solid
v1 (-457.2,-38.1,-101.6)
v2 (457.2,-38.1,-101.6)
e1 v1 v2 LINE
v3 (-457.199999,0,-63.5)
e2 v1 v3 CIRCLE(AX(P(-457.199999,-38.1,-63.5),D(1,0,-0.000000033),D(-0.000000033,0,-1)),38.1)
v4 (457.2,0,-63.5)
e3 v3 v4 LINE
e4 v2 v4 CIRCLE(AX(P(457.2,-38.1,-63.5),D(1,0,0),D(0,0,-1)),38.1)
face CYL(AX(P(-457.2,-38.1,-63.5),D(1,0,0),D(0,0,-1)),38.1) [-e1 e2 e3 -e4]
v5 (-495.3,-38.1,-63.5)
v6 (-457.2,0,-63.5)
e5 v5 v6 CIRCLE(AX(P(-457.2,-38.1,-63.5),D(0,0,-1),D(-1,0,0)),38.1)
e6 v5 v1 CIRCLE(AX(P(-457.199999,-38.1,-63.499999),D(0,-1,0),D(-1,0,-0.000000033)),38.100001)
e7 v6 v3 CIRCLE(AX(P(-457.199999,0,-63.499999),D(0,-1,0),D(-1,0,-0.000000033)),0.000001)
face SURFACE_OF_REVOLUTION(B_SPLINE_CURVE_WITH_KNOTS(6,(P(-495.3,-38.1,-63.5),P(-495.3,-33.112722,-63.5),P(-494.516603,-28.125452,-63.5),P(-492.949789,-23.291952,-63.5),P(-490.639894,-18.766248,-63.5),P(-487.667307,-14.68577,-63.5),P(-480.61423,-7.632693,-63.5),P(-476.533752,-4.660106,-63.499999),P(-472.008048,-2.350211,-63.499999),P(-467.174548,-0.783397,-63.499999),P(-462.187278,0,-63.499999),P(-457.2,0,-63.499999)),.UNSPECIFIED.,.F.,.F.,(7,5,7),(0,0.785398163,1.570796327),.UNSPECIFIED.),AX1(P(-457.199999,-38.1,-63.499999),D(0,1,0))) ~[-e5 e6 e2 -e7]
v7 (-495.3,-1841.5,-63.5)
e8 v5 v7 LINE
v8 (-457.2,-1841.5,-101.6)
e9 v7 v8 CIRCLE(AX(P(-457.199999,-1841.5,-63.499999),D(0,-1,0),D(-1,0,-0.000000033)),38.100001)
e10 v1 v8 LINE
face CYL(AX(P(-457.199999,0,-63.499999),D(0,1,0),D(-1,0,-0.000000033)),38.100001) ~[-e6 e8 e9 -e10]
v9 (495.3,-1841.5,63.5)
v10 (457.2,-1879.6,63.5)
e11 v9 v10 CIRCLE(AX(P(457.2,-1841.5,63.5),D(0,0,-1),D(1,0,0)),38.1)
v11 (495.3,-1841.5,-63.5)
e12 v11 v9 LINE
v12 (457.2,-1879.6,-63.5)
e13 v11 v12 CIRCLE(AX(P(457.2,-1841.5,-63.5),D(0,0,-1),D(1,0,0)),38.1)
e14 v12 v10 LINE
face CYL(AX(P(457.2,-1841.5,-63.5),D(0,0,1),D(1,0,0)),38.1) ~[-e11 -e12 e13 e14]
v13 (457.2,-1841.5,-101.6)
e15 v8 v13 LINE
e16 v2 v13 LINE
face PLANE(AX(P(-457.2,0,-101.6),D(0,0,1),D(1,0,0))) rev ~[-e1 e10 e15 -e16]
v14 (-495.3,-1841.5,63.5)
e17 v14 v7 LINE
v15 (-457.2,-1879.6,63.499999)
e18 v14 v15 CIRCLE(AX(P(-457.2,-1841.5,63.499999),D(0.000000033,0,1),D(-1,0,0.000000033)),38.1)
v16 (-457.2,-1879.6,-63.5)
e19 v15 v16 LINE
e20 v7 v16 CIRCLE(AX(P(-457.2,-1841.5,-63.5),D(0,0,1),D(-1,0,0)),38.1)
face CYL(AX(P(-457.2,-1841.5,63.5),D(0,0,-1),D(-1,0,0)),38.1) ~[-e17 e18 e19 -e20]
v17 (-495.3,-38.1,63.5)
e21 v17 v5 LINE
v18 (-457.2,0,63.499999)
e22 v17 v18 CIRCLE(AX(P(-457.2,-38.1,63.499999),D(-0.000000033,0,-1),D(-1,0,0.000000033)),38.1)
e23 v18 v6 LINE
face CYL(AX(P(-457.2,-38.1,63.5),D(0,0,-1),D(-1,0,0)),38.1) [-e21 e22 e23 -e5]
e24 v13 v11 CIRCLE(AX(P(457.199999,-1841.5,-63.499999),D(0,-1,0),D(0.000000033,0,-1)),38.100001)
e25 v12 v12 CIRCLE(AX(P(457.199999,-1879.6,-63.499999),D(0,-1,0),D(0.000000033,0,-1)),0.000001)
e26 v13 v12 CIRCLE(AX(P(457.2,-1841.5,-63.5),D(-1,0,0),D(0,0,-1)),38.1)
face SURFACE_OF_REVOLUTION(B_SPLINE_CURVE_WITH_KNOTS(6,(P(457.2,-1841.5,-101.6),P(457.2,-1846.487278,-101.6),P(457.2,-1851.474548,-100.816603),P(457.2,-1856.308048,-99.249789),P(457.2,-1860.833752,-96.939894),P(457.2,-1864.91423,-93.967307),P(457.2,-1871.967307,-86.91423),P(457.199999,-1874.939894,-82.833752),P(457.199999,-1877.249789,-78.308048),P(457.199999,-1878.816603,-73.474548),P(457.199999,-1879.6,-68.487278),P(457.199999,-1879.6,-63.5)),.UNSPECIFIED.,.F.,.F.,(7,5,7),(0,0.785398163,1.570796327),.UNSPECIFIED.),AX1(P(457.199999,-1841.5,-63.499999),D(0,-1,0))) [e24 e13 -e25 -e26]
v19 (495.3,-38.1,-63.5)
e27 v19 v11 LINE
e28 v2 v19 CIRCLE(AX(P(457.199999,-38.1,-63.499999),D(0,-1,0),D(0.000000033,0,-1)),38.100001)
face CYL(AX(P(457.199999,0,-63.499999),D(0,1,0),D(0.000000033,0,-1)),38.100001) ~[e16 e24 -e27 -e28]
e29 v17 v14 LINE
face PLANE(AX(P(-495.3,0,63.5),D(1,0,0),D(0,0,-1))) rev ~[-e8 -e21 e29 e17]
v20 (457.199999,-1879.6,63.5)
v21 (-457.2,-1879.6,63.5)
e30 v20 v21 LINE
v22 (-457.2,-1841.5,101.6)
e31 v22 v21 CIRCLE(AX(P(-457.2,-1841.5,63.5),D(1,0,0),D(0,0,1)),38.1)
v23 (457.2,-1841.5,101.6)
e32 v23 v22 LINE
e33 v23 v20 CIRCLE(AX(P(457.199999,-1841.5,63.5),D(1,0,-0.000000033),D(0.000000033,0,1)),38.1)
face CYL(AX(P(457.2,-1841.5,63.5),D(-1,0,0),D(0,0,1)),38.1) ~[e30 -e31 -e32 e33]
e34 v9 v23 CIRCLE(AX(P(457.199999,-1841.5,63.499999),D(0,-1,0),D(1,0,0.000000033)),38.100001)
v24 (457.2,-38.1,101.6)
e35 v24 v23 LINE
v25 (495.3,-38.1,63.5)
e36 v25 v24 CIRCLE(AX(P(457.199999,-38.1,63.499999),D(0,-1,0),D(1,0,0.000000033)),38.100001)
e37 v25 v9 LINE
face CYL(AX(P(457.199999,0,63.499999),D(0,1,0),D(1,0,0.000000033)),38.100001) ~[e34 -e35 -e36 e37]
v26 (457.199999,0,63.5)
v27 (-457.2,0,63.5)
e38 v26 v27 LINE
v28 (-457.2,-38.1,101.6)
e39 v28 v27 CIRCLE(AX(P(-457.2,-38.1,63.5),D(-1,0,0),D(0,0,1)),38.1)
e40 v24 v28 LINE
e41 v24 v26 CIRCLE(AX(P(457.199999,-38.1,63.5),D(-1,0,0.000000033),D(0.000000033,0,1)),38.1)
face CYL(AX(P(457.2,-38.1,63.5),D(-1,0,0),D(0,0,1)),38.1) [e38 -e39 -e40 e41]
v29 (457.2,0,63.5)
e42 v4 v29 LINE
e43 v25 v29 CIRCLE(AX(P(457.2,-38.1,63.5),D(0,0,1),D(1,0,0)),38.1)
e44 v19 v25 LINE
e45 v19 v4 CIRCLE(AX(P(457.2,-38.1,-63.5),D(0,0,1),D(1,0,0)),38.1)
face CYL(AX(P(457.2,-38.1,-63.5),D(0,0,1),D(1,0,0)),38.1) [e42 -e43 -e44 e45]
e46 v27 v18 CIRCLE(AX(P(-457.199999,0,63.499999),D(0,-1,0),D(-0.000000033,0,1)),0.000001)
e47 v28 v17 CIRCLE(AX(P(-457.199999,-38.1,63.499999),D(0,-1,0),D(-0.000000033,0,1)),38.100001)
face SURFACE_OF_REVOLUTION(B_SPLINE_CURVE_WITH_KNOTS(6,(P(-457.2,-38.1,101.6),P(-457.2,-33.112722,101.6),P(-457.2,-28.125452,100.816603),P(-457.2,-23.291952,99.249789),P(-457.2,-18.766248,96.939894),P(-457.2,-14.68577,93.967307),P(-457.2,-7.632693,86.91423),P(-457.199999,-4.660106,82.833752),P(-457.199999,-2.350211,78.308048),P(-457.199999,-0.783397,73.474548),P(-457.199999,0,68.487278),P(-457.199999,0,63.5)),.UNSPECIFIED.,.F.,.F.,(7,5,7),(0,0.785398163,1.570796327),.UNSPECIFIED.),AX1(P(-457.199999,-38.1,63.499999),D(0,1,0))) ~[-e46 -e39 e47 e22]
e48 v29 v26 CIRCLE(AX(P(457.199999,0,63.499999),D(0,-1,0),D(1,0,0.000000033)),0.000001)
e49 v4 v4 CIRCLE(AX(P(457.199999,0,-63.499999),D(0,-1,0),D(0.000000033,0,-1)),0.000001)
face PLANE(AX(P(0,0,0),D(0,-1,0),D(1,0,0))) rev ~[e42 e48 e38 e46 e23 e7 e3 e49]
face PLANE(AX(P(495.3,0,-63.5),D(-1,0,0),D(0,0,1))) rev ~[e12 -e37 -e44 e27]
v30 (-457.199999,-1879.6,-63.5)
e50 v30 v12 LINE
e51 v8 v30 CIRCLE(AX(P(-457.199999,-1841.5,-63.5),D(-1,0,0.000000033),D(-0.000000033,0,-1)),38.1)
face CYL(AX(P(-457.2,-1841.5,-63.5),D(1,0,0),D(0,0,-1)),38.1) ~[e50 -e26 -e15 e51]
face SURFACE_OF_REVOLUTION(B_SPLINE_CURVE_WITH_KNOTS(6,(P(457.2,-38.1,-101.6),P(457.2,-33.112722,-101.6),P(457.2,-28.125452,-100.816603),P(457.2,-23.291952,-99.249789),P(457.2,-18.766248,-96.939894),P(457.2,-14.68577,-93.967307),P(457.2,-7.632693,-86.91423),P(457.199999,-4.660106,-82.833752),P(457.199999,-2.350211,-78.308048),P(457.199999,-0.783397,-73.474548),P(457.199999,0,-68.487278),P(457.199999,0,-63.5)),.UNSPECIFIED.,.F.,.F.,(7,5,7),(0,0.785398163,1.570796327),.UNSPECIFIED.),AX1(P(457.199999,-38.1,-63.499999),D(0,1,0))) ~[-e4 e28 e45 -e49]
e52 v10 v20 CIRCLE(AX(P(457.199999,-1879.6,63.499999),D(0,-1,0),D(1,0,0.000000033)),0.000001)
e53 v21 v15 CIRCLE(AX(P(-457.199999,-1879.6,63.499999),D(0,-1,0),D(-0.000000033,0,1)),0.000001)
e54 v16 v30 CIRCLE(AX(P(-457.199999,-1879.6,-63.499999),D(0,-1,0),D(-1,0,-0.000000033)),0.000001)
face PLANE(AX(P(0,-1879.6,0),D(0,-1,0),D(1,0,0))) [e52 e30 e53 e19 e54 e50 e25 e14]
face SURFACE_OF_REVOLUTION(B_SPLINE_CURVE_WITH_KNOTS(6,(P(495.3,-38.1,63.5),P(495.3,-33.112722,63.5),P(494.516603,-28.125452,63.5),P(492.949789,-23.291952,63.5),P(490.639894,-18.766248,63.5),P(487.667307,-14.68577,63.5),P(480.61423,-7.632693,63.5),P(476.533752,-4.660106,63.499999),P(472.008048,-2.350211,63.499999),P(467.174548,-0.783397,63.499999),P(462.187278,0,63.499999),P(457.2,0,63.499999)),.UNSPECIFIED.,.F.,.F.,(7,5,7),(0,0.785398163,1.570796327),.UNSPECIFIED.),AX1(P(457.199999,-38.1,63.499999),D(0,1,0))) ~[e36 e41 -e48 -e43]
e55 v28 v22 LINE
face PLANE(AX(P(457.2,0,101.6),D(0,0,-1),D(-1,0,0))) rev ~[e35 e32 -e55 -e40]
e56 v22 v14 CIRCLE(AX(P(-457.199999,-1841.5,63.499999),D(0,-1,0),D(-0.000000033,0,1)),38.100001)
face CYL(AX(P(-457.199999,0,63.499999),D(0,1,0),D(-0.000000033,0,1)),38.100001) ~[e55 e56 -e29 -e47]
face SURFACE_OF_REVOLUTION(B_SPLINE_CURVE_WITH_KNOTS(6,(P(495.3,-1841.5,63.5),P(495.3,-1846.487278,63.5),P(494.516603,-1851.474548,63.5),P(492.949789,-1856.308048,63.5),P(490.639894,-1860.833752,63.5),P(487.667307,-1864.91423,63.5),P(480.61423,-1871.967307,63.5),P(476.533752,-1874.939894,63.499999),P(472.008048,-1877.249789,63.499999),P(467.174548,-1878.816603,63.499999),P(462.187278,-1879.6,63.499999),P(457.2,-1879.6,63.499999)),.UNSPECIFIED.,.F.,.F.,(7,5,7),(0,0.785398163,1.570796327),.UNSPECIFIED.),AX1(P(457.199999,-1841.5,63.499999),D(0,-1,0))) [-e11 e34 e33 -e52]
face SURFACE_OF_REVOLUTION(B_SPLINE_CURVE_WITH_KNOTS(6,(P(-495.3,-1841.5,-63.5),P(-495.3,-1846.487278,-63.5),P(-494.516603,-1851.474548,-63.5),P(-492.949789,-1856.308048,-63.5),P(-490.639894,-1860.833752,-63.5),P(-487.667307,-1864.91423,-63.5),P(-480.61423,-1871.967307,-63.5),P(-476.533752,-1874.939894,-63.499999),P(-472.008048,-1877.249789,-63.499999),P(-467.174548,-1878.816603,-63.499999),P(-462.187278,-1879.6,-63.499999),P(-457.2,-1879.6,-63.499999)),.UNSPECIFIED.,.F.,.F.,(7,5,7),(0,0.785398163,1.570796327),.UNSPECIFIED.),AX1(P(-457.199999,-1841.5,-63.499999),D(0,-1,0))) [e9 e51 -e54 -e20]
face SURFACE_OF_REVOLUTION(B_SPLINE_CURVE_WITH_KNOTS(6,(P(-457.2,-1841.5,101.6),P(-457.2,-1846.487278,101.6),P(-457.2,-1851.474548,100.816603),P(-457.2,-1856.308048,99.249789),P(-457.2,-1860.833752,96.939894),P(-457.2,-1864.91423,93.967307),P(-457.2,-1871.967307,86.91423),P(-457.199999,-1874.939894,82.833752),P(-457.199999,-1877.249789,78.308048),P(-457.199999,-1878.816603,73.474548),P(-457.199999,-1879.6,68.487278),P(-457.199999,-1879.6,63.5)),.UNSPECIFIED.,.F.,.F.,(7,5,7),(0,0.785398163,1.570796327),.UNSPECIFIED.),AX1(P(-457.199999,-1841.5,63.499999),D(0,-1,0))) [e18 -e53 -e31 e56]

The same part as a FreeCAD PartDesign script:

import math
import FreeCAD as App
import Part
import Sketcher
from FreeCAD import Vector
Q = App.Units.Quantity


def edges_at(feature, points):
    """Names of the edges that pass closest to the given points."""
    edges = feature.Shape.Edges
    near = lambda p: min(range(len(edges)), key=lambda i: edges[i].distToShape(Part.Vertex(*p))[0])
    return sorted({f"Edge{near(p) + 1}" for p in points})

doc = App.newDocument("Part")
body = doc.addObject("PartDesign::Body", "Body")

# Sketch on XZ plane
sketch1 = body.newObject("Sketcher::SketchObject", "Sketch")
sketch1.AttachmentSupport = (doc.getObject("XZ_Plane"), [""])
sketch1.MapMode = "FlatFace"
sketch1.addGeometry([
    Part.LineSegment(Vector(-457.2, -101.6, 0), Vector(457.2, -101.6, 0)),  # 0
    Part.ArcOfCircle(Part.Circle(Vector(457.199999, -63.499999, 0), Vector(0, 0, 1), 38.100001), math.radians(-89.999998), math.radians(-0.000002)),  # 1
    Part.LineSegment(Vector(495.3, -63.5, 0), Vector(495.3, 63.5, 0)),  # 2
    Part.ArcOfCircle(Part.Circle(Vector(457.199999, 63.499999, 0), Vector(0, 0, 1), 38.100001), math.radians(0.000002), math.radians(89.999998)),  # 3
    Part.LineSegment(Vector(457.2, 101.6, 0), Vector(-457.2, 101.6, 0)),  # 4
    Part.ArcOfCircle(Part.Circle(Vector(-457.199999, 63.499999, 0), Vector(0, 0, 1), 38.100001), math.radians(90.000002), math.radians(179.999998)),  # 5
    Part.LineSegment(Vector(-495.3, 63.5, 0), Vector(-495.3, -63.5, 0)),  # 6
    Part.ArcOfCircle(Part.Circle(Vector(-457.199999, -63.499999, 0), Vector(0, 0, 1), 38.100001), math.radians(-179.999998), math.radians(-90.000002)),  # 7
], False)
sketch1.addConstraint([
    Sketcher.Constraint("Tangent", 0, 2, 1, 1),
    Sketcher.Constraint("Tangent", 1, 2, 2, 1),
    Sketcher.Constraint("Tangent", 2, 2, 3, 1),
    Sketcher.Constraint("Tangent", 3, 2, 4, 1),
    Sketcher.Constraint("Tangent", 4, 2, 5, 1),
    Sketcher.Constraint("Tangent", 5, 2, 6, 1),
    Sketcher.Constraint("Tangent", 6, 2, 7, 1),
    Sketcher.Constraint("Tangent", 7, 2, 0, 1),
    Sketcher.Constraint("Horizontal", 0),
    Sketcher.Constraint("Vertical", 2),
    Sketcher.Constraint("Horizontal", 4),
    Sketcher.Constraint("Vertical", 6),
    Sketcher.Constraint("Equal", 1, 3),
    Sketcher.Constraint("Equal", 3, 5),
    Sketcher.Constraint("Equal", 5, 7),
    Sketcher.Constraint("Symmetric", 1, 3, 5, 3, -1, 1),
    Sketcher.Constraint("Radius", 1, Q("1.5 in")),
    Sketcher.Constraint("DistanceX", 0, 1, 0, 2, Q("36 in")),
    Sketcher.Constraint("DistanceY", 2, 1, 2, 2, Q("5 in")),
])
pad1 = body.newObject("PartDesign::Pad", "Pad")
pad1.Profile = sketch1
pad1.Length = Q("74 in")
doc.recompute()

fillet = body.newObject("PartDesign::Fillet", "Fillet")
fillet.Base = (pad1, edges_at(pad1, [(495.3, -1879.6, 0), (457.2, -939.8, 101.6), (495.3, 0, 0)]))
fillet.Radius = Q("1.5 in")

doc.recompute()
